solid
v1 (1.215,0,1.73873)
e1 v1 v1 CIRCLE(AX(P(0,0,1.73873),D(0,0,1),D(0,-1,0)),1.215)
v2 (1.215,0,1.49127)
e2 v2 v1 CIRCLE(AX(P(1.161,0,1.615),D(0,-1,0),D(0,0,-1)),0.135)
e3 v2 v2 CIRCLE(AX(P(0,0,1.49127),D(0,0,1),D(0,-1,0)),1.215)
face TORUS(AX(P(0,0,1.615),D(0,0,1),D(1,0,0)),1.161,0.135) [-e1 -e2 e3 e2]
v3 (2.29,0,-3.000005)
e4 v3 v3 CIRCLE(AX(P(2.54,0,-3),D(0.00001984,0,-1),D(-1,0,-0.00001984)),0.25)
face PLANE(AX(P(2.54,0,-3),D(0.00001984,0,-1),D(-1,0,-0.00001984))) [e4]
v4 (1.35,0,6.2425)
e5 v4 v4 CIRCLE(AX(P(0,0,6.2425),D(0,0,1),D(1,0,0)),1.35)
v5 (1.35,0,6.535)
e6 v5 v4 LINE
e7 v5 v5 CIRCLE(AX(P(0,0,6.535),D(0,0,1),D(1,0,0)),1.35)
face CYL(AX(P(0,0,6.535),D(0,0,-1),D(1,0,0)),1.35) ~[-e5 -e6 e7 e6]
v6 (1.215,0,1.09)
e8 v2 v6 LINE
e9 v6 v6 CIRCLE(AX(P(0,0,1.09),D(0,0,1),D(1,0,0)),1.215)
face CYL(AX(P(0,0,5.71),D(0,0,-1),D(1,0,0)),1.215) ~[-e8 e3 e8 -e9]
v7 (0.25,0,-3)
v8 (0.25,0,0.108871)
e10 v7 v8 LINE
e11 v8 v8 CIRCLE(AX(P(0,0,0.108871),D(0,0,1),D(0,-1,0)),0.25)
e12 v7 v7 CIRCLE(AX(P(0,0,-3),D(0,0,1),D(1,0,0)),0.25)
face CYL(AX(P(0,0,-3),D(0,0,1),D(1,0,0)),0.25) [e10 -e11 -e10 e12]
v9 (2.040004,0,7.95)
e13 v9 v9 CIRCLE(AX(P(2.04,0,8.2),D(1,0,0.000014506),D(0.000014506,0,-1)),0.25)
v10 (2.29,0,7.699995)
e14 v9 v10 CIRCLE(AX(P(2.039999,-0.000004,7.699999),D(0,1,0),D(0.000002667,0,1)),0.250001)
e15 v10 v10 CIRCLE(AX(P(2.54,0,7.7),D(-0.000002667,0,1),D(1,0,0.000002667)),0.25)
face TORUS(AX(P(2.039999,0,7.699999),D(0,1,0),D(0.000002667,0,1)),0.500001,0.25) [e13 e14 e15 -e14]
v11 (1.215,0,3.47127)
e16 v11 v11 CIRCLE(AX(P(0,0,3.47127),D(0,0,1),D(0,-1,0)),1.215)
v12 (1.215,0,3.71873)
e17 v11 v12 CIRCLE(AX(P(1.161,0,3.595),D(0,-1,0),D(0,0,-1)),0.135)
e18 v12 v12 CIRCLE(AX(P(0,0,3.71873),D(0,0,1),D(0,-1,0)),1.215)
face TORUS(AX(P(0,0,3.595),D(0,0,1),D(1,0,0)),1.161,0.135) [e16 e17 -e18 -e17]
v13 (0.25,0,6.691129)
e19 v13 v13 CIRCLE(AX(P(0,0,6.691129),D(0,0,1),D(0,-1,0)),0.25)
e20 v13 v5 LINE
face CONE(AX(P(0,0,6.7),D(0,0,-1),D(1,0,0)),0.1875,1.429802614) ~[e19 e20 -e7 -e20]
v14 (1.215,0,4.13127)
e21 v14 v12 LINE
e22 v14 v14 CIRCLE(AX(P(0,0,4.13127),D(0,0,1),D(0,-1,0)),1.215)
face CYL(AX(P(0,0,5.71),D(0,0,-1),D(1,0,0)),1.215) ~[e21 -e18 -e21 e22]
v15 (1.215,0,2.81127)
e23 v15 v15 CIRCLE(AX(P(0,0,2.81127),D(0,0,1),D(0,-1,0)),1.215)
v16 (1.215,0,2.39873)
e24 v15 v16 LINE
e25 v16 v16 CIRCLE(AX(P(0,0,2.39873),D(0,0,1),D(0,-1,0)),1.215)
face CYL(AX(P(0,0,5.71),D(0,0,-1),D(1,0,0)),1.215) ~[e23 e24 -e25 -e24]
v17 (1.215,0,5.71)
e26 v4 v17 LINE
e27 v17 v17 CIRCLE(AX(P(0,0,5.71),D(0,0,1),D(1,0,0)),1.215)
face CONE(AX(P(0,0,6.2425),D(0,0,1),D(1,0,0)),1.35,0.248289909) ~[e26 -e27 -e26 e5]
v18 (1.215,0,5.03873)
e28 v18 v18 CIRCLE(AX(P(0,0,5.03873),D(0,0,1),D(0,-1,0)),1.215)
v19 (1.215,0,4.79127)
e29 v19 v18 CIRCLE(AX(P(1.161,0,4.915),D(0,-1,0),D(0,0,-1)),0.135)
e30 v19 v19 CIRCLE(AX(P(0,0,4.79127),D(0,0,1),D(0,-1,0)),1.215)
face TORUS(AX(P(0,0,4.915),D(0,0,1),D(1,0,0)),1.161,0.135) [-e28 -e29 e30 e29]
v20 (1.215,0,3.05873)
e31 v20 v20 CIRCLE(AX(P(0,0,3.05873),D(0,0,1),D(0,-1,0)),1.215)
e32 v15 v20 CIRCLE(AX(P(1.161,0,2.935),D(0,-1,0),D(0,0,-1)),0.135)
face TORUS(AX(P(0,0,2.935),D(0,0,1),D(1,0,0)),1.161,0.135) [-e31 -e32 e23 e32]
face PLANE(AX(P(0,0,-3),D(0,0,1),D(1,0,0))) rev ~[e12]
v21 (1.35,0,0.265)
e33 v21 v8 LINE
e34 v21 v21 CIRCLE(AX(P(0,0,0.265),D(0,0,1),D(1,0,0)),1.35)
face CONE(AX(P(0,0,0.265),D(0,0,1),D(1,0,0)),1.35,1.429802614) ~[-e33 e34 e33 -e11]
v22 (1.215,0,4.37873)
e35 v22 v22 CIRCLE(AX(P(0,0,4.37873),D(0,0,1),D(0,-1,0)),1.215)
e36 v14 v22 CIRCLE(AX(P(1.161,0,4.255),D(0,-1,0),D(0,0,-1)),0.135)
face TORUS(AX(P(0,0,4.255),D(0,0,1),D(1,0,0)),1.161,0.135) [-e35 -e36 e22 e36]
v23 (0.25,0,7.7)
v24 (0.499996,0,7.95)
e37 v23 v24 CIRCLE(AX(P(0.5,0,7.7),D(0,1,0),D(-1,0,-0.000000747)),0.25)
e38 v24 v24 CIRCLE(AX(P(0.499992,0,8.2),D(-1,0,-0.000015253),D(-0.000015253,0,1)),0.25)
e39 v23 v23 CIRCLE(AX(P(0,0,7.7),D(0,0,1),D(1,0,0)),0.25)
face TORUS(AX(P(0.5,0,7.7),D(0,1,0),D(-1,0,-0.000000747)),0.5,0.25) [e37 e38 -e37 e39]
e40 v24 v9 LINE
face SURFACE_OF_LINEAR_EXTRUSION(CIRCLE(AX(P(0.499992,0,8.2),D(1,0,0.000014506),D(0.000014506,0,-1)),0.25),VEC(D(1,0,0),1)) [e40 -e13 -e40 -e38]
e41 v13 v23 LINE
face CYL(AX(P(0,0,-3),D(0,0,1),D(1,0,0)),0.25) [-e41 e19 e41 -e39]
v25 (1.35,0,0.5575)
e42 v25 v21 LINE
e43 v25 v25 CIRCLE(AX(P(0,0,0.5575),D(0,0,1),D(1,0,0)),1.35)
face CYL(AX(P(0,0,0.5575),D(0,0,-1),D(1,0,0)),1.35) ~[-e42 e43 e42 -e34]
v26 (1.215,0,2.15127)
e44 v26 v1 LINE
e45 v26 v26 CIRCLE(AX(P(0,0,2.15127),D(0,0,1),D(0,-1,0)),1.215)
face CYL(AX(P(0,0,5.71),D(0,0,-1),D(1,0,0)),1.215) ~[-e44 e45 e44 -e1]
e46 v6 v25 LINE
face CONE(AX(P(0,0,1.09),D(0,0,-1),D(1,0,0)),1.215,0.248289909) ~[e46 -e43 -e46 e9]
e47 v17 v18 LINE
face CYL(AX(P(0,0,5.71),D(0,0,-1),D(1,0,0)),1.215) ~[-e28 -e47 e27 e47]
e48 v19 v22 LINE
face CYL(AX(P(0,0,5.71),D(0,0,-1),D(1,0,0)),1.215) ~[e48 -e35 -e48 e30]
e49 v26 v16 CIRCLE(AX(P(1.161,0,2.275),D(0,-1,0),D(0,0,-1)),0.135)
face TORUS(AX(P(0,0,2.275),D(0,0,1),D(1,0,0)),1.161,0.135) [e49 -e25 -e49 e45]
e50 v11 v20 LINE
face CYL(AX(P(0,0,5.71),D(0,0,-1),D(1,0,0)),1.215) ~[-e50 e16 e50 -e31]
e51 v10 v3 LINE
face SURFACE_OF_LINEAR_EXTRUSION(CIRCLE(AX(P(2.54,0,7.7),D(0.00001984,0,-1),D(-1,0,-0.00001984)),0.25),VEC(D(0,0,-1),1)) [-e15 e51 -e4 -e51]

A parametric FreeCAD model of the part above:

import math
import FreeCAD as App
import Part
import Sketcher
from FreeCAD import Vector
Q = App.Units.Quantity

doc = App.newDocument("Part")
params = doc.addObject("Spreadsheet::Sheet", "Params")
for row, (alias, value) in enumerate([
    ("sketch1_height", "6.6 mm"),
    ("sketch1_height2", "4.62 mm"),
    ("revolution_angle", "360 deg"),
    ("sketch2_height", "4.35 mm"),
    ("revolution2_angle", "360 deg"),
    ("sketch3_diameter", "0.5 mm"),
    ("sketch4_radius", "0.5 mm"),
    ("sketch4_height", "10.7 mm"),
], start=1):
    params.set(f"A{row}", alias)
    params.set(f"B{row}", "=" + value)
    params.setAlias(f"B{row}", alias)

body = doc.addObject("PartDesign::Body", "Body")

sketch1 = body.newObject("Sketcher::SketchObject", "Sketch")
sketch1.AttachmentSupport = (doc.getObject("XZ_Plane"), [""])
sketch1.MapMode = "FlatFace"
sketch1.addGeometry(Part.LineSegment(Vector(0, 6.7, 0), Vector(0, 0.1, 0)), False)
sketch1.addGeometry(Part.LineSegment(Vector(0, 0.1, 0), Vector(0.19, 0.1, 0)), False)
sketch1.addGeometry(Part.LineSegment(Vector(0.19, 0.1, 0), Vector(1.35, 0.27, 0)), False)
sketch1.addGeometry(Part.LineSegment(Vector(1.35, 0.27, 0), Vector(1.35, 0.56, 0)), False)
sketch1.addGeometry(Part.LineSegment(Vector(1.35, 0.56, 0), Vector(1.22, 1.09, 0)), False)
sketch1.addGeometry(Part.LineSegment(Vector(1.22, 1.09, 0), Vector(1.22, 5.71, 0)), False)
sketch1.addGeometry(Part.LineSegment(Vector(1.22, 5.71, 0), Vector(1.35, 6.24, 0)), False)
sketch1.addGeometry(Part.LineSegment(Vector(1.35, 6.24, 0), Vector(1.35, 6.54, 0)), False)
sketch1.addGeometry(Part.LineSegment(Vector(1.35, 6.54, 0), Vector(0.19, 6.7, 0)), False)
sketch1.addGeometry(Part.LineSegment(Vector(0.19, 6.7, 0), Vector(0, 6.7, 0)), False)
sketch1.addConstraint(Sketcher.Constraint("Coincident", 0, 2, 1, 1))
sketch1.addConstraint(Sketcher.Constraint("Coincident", 1, 2, 2, 1))
sketch1.addConstraint(Sketcher.Constraint("Coincident", 2, 2, 3, 1))
sketch1.addConstraint(Sketcher.Constraint("Coincident", 3, 2, 4, 1))
sketch1.addConstraint(Sketcher.Constraint("Coincident", 4, 2, 5, 1))
sketch1.addConstraint(Sketcher.Constraint("Coincident", 5, 2, 6, 1))
sketch1.addConstraint(Sketcher.Constraint("Coincident", 6, 2, 7, 1))
sketch1.addConstraint(Sketcher.Constraint("Coincident", 7, 2, 8, 1))
sketch1.addConstraint(Sketcher.Constraint("Coincident", 8, 2, 9, 1))
sketch1.addConstraint(Sketcher.Constraint("Coincident", 9, 2, 0, 1))
sketch1.addConstraint(Sketcher.Constraint("Vertical", 0))
sketch1.addConstraint(Sketcher.Constraint("Horizontal", 1))
sketch1.addConstraint(Sketcher.Constraint("Vertical", 3))
sketch1.addConstraint(Sketcher.Constraint("Vertical", 5))
sketch1.addConstraint(Sketcher.Constraint("Vertical", 7))
sketch1.addConstraint(Sketcher.Constraint("Horizontal", 9))
sketch1.addConstraint(Sketcher.Constraint("PointOnObject", 0, 2, -2))
sketch1.addConstraint(Sketcher.Constraint("Vertical", 3, 2, 6, 2))
sketch1.addConstraint(Sketcher.Constraint("Vertical", 1, 2, 8, 2))
sketch1.addConstraint(Sketcher.Constraint("Equal", 3, 7))
sketch1.addConstraint(Sketcher.Constraint("Equal", 4, 6))
sketch1.addConstraint(Sketcher.Constraint("Equal", 2, 8))
sketch1.addConstraint(Sketcher.Constraint("DistanceY", 0, 2, 0, 1, Q("6.6 mm")))
sketch1.addConstraint(Sketcher.Constraint("DistanceY", 5, 1, 5, 2, Q("4.62 mm")))
sketch1.addConstraint(Sketcher.Constraint("DistanceY", -1, 1, 0, 2, Q("0.1 mm")))
sketch1.addConstraint(Sketcher.Constraint("DistanceX", -1, 1, 2, 2, Q("1.35 mm")))
sketch1.addConstraint(Sketcher.Constraint("DistanceY", 2, 2, 7, 2, Q("6.27 mm")))
sketch1.addConstraint(Sketcher.Constraint("DistanceX", 1, 1, 1, 2, Q("0.1875 mm")))
sketch1.addConstraint(Sketcher.Constraint("DistanceY", 3, 1, 3, 2, Q("0.2925 mm")))
sketch1.addConstraint(Sketcher.Constraint("DistanceX", -1, 1, 4, 2, Q("1.215 mm")))
sketch1.setExpression("Constraints[22]", "Params.sketch1_height")
sketch1.setExpression("Constraints[23]", "Params.sketch1_height2")
revolution = body.newObject("PartDesign::Revolution", "Revolution")
revolution.Profile = sketch1
revolution.ReferenceAxis = (sketch1, ["V_Axis"])
revolution.setExpression("Angle", "Params.revolution_angle")
body2 = doc.addObject("PartDesign::Body", "Body001")

sketch2 = body2.newObject("Sketcher::SketchObject", "Sketch001")
sketch2.AttachmentSupport = (doc.getObject("XZ_Plane001"), [""])
sketch2.MapMode = "FlatFace"
sketch2.addGeometry(Part.LineSegment(Vector(1.08, 5.44, 0), Vector(1.08, 1.09, 0)), False)
sketch2.addGeometry(Part.LineSegment(Vector(1.08, 1.09, 0), Vector(1.16, 1.09, 0)), False)
sketch2.addGeometry(Part.LineSegment(Vector(1.16, 1.09, 0), Vector(1.16, 1.48, 0)), False)
sketch2.addGeometry(Part.ArcOfCircle(Part.Circle(Vector(1.16, 1.61, 0), Vector(0, 0, 1), 0.14), math.radians(-90), math.radians(90)), False)
sketch2.addGeometry(Part.LineSegment(Vector(1.16, 1.75, 0), Vector(1.16, 2.14, 0)), False)
sketch2.addGeometry(Part.ArcOfCircle(Part.Circle(Vector(1.16, 2.27, 0), Vector(0, 0, 1), 0.14), math.radians(-90), math.radians(90)), False)
sketch2.addGeometry(Part.LineSegment(Vector(1.16, 2.41, 0), Vector(1.16, 2.8, 0)), False)
sketch2.addGeometry(Part.ArcOfCircle(Part.Circle(Vector(1.16, 2.94, 0), Vector(0, 0, 1), 0.14), math.radians(-90), math.radians(90)), False)
sketch2.addGeometry(Part.LineSegment(Vector(1.16, 3.07, 0), Vector(1.16, 3.46, 0)), False)
sketch2.addGeometry(Part.ArcOfCircle(Part.Circle(Vector(1.16, 3.6, 0), Vector(0, 0, 1), 0.14), math.radians(-90), math.radians(90)), False)
sketch2.addGeometry(Part.LineSegment(Vector(1.16, 3.73, 0), Vector(1.16, 4.12, 0)), False)
sketch2.addGeometry(Part.ArcOfCircle(Part.Circle(Vector(1.16, 4.25, 0), Vector(0, 0, 1), 0.14), math.radians(-90), math.radians(90)), False)
sketch2.addGeometry(Part.LineSegment(Vector(1.16, 4.39, 0), Vector(1.16, 4.78, 0)), False)
sketch2.addGeometry(Part.ArcOfCircle(Part.Circle(Vector(1.16, 4.92, 0), Vector(0, 0, 1), 0.14), math.radians(-90), math.radians(90)), False)
sketch2.addGeometry(Part.LineSegment(Vector(1.16, 5.05, 0), Vector(1.16, 5.44, 0)), False)
sketch2.addGeometry(Part.LineSegment(Vector(1.16, 5.44, 0), Vector(1.08, 5.44, 0)), False)
sketch2.addConstraint(Sketcher.Constraint("Coincident", 0, 2, 1, 1))
sketch2.addConstraint(Sketcher.Constraint("Coincident", 1, 2, 2, 1))
sketch2.addConstraint(Sketcher.Constraint("Coincident", 2, 2, 3, 1))
sketch2.addConstraint(Sketcher.Constraint("Coincident", 3, 2, 4, 1))
sketch2.addConstraint(Sketcher.Constraint("Coincident", 4, 2, 5, 1))
sketch2.addConstraint(Sketcher.Constraint("Coincident", 5, 2, 6, 1))
sketch2.addConstraint(Sketcher.Constraint("Coincident", 6, 2, 7, 1))
sketch2.addConstraint(Sketcher.Constraint("Coincident", 7, 2, 8, 1))
sketch2.addConstraint(Sketcher.Constraint("Coincident", 8, 2, 9, 1))
sketch2.addConstraint(Sketcher.Constraint("Coincident", 9, 2, 10, 1))
sketch2.addConstraint(Sketcher.Constraint("Coincident", 10, 2, 11, 1))
sketch2.addConstraint(Sketcher.Constraint("Coincident", 11, 2, 12, 1))
sketch2.addConstraint(Sketcher.Constraint("Coincident", 12, 2, 13, 1))
sketch2.addConstraint(Sketcher.Constraint("Coincident", 13, 2, 14, 1))
sketch2.addConstraint(Sketcher.Constraint("Coincident", 14, 2, 15, 1))
sketch2.addConstraint(Sketcher.Constraint("Coincident", 15, 2, 0, 1))
sketch2.addConstraint(Sketcher.Constraint("Vertical", 0))
sketch2.addConstraint(Sketcher.Constraint("Horizontal", 1))
sketch2.addConstraint(Sketcher.Constraint("Vertical", 2))
sketch2.addConstraint(Sketcher.Constraint("Vertical", 4))
sketch2.addConstraint(Sketcher.Constraint("Vertical", 6))
sketch2.addConstraint(Sketcher.Constraint("Vertical", 8))
sketch2.addConstraint(Sketcher.Constraint("Vertical", 10))
sketch2.addConstraint(Sketcher.Constraint("Vertical", 12))
sketch2.addConstraint(Sketcher.Constraint("Vertical", 14))
sketch2.addConstraint(Sketcher.Constraint("Horizontal", 15))
sketch2.addConstraint(Sketcher.Constraint("Equal", 3, 5))
sketch2.addConstraint(Sketcher.Constraint("Equal", 5, 7))
sketch2.addConstraint(Sketcher.Constraint("Equal", 7, 9))
sketch2.addConstraint(Sketcher.Constraint("Equal", 9, 11))
sketch2.addConstraint(Sketcher.Constraint("Equal", 11, 13))
sketch2.addConstraint(Sketcher.Constraint("Vertical", 3, 3, 5, 3))
sketch2.addConstraint(Sketcher.Constraint("Vertical", 5, 3, 7, 3))
sketch2.addConstraint(Sketcher.Constraint("Vertical", 7, 3, 9, 3))
sketch2.addConstraint(Sketcher.Constraint("Vertical", 9, 3, 11, 3))
sketch2.addConstraint(Sketcher.Constraint("Vertical", 11, 3, 13, 3))
sketch2.addConstraint(Sketcher.Constraint("Vertical", 13, 3, 1, 2))
sketch2.addConstraint(Sketcher.Constraint("Vertical", 2, 2, 3, 2))
sketch2.addConstraint(Sketcher.Constraint("Vertical", 4, 2, 5, 2))
sketch2.addConstraint(Sketcher.Constraint("Vertical", 6, 2, 7, 2))
sketch2.addConstraint(Sketcher.Constraint("Vertical", 8, 2, 9, 2))
sketch2.addConstraint(Sketcher.Constraint("Vertical", 10, 2, 11, 2))
sketch2.addConstraint(Sketcher.Constraint("Vertical", 12, 2, 13, 2))
sketch2.addConstraint(Sketcher.Constraint("Equal", 2, 4))
sketch2.addConstraint(Sketcher.Constraint("Equal", 4, 6))
sketch2.addConstraint(Sketcher.Constraint("Equal", 6, 8))
sketch2.addConstraint(Sketcher.Constraint("Equal", 8, 10))
sketch2.addConstraint(Sketcher.Constraint("Equal", 10, 12))
sketch2.addConstraint(Sketcher.Constraint("Equal", 12, 14))
sketch2.addConstraint(Sketcher.Constraint("Radius", 3, Q("0.135 mm")))
sketch2.addConstraint(Sketcher.Constraint("DistanceY", 0, 2, 0, 1, Q("4.35 mm")))
sketch2.addConstraint(Sketcher.Constraint("DistanceY", -1, 1, 6, 2, Q("2.8 mm")))
sketch2.addConstraint(Sketcher.Constraint("DistanceX", 1, 1, 1, 2, Q("0.081 mm")))
sketch2.addConstraint(Sketcher.Constraint("DistanceX", -1, 1, 0, 2, Q("1.08 mm")))
sketch2.setExpression("Constraints[50]", "Params.sketch2_height")
revolution2 = body2.newObject("PartDesign::Revolution", "Revolution001")
revolution2.Profile = sketch2
revolution2.ReferenceAxis = (sketch2, ["V_Axis"])
revolution2.setExpression("Angle", "Params.revolution2_angle")
body3 = doc.addObject("PartDesign::Body", "Body002")

sketch3 = body3.newObject("Sketcher::SketchObject", "Sketch002")
sketch3.AttachmentSupport = (doc.getObject("XY_Plane002"), [""])
sketch3.MapMode = "FlatFace"
sketch3.AttachmentOffset = App.Placement(Vector(0, 0, -2), App.Rotation())
sketch3.addGeometry(Part.Circle(Vector(0, 0, 0), Vector(0, 0, 1), 0.25), False)
sketch3.addConstraint(Sketcher.Constraint("Coincident", 0, 3, -1, 1))
sketch3.addConstraint(Sketcher.Constraint("Diameter", 0, Q("0.5 mm")))
sketch3.setExpression("Constraints[1]", "Params.sketch3_diameter")

sketch4 = body3.newObject("Sketcher::SketchObject", "Sketch003")
sketch4.AttachmentSupport = (doc.getObject("XZ_Plane002"), [""])
sketch4.MapMode = "FlatFace"
sketch4.addGeometry(Part.LineSegment(Vector(0, -3, 0), Vector(0, 7.7, 0)), False)
sketch4.addGeometry(Part.ArcOfCircle(Part.Circle(Vector(0.5, 7.7, 0), Vector(0, 0, 1), 0.5), math.radians(90), math.radians(180)), False)
sketch4.addGeometry(Part.LineSegment(Vector(0.5, 8.2, 0), Vector(2.04, 8.2, 0)), False)
sketch4.addGeometry(Part.ArcOfCircle(Part.Circle(Vector(2.04, 7.7, 0), Vector(0, 0, 1), 0.5), math.radians(0), math.radians(90)), False)
sketch4.addGeometry(Part.LineSegment(Vector(2.54, 7.7, 0), Vector(2.54, -3, 0)), False)
sketch4.addConstraint(Sketcher.Constraint("Tangent", 0, 2, 1, 2))
sketch4.addConstraint(Sketcher.Constraint("Coincident", 1, 1, 2, 1))
sketch4.addConstraint(Sketcher.Constraint("Coincident", 2, 2, 3, 2))
sketch4.addConstraint(Sketcher.Constraint("Coincident", 3, 1, 4, 1))
sketch4.addConstraint(Sketcher.Constraint("Vertical", 0))
sketch4.addConstraint(Sketcher.Constraint("Horizontal", 2))
sketch4.addConstraint(Sketcher.Constraint("Vertical", 4))
sketch4.addConstraint(Sketcher.Constraint("Equal", 1, 3))
sketch4.addConstraint(Sketcher.Constraint("PointOnObject", 0, 1, -2))
sketch4.addConstraint(Sketcher.Constraint("Horizontal", 0, 2, 3, 1))
sketch4.addConstraint(Sketcher.Constraint("Horizontal", 0, 1, 4, 2))
sketch4.addConstraint(Sketcher.Constraint("Vertical", 3, 3, 2, 2))
sketch4.addConstraint(Sketcher.Constraint("Radius", 1, Q("0.5 mm")))
sketch4.addConstraint(Sketcher.Constraint("DistanceY", 0, 1, 0, 2, Q("10.7 mm")))
sketch4.addConstraint(Sketcher.Constraint("DistanceY", 0, 1, -1, 1, Q("3 mm")))
sketch4.addConstraint(Sketcher.Constraint("DistanceX", -1, 1, 3, 3, Q("2.039999 mm")))
sketch4.addConstraint(Sketcher.Constraint("DistanceX", 2, 1, 2, 2, Q("1.540008 mm")))
sketch4.setExpression("Constraints[12]", "Params.sketch4_radius")
sketch4.setExpression("Constraints[13]", "Params.sketch4_height")
doc.recompute()

additivepipe = body3.newObject("PartDesign::AdditivePipe", "AdditivePipe")
additivepipe.Profile = sketch3
additivepipe.Spine = (sketch4, ["Edge1", "Edge2", "Edge3", "Edge4", "Edge5"])
doc.recompute()

boolean = body3.newObject("PartDesign::Boolean", "Boolean")
boolean.Type = "Fuse"
boolean.addObjects([body])
doc.recompute()

boolean2 = body3.newObject("PartDesign::Boolean", "Boolean001")
boolean2.Type = "Fuse"
boolean2.addObjects([body2])

doc.recompute()
